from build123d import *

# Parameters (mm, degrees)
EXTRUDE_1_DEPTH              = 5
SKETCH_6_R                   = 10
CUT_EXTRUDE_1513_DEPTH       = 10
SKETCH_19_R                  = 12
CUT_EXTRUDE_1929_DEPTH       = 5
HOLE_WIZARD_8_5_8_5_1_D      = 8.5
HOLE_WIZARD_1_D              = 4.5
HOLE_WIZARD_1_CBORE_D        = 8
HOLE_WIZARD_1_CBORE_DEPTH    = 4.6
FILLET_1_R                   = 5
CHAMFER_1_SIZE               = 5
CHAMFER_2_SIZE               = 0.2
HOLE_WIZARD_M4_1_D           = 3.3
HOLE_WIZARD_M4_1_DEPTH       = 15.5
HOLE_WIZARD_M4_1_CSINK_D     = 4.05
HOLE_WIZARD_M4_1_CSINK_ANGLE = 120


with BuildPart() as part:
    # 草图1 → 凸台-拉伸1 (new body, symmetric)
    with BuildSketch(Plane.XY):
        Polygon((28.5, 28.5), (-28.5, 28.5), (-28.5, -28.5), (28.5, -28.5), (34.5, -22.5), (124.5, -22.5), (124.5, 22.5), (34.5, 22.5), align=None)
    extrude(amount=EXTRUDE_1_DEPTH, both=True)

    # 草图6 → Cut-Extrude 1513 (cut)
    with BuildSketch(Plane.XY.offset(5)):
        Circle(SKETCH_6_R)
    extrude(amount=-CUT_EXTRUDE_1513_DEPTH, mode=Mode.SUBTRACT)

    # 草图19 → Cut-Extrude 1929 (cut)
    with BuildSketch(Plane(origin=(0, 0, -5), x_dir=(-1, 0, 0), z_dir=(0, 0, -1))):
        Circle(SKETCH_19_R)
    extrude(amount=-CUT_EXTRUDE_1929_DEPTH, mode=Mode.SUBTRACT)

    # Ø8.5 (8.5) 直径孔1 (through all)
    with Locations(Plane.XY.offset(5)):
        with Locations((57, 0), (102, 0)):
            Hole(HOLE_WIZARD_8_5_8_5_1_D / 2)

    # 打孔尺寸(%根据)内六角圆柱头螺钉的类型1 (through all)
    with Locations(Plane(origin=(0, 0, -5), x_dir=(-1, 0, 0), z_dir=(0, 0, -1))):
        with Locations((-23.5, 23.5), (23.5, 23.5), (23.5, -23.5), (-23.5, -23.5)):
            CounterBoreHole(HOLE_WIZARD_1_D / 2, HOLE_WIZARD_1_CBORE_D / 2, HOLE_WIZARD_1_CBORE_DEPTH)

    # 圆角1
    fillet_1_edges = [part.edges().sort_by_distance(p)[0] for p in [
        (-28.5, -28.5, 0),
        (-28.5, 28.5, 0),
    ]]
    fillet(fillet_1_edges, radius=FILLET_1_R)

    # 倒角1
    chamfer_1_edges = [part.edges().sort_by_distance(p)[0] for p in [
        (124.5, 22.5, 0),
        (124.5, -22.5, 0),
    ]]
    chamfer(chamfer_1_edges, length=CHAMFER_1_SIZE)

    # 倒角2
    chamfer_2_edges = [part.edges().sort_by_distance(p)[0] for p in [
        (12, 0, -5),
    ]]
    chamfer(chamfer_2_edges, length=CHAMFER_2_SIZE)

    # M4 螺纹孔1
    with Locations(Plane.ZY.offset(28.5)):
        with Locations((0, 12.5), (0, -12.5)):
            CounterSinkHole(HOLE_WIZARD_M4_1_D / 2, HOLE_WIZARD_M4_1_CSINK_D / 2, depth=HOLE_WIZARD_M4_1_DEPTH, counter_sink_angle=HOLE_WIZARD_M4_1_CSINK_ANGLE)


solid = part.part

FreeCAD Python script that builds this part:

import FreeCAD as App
import Part
import Sketcher


def edges_at(feature, points):
    """Names of the edges that pass closest to the given points."""
    edges = feature.Shape.Edges
    near = lambda p: min(range(len(edges)), key=lambda i: edges[i].distToShape(Part.Vertex(*p))[0])
    return sorted({f"Edge{near(p) + 1}" for p in points})

doc = App.newDocument("Part")
body = doc.addObject("PartDesign::Body", "Body")

# Sketch on XY plane
sketch1 = body.newObject("Sketcher::SketchObject", "Sketch")
sketch1.AttachmentSupport = (doc.getObject("XY_Plane"), [""])
sketch1.MapMode = "FlatFace"
sketch1.addGeometry(Part.LineSegment(App.Vector(28.5, 28.5, 0), App.Vector(-28.5, 28.5, 0)), False)
sketch1.addGeometry(Part.LineSegment(App.Vector(-28.5, 28.5, 0), App.Vector(-28.5, -28.5, 0)), False)
sketch1.addGeometry(Part.LineSegment(App.Vector(-28.5, -28.5, 0), App.Vector(28.5, -28.5, 0)), False)
sketch1.addGeometry(Part.LineSegment(App.Vector(28.5, -28.5, 0), App.Vector(34.5, -22.5, 0)), False)
sketch1.addGeometry(Part.LineSegment(App.Vector(34.5, -22.5, 0), App.Vector(124.5, -22.5, 0)), False)
sketch1.addGeometry(Part.LineSegment(App.Vector(124.5, -22.5, 0), App.Vector(124.5, 22.5, 0)), False)
sketch1.addGeometry(Part.LineSegment(App.Vector(124.5, 22.5, 0), App.Vector(34.5, 22.5, 0)), False)
sketch1.addGeometry(Part.LineSegment(App.Vector(34.5, 22.5, 0), App.Vector(28.5, 28.5, 0)), False)
sketch1.addConstraint(Sketcher.Constraint("Coincident", 0, 2, 1, 1))
sketch1.addConstraint(Sketcher.Constraint("Coincident", 1, 2, 2, 1))
sketch1.addConstraint(Sketcher.Constraint("Coincident", 2, 2, 3, 1))
sketch1.addConstraint(Sketcher.Constraint("Coincident", 3, 2, 4, 1))
sketch1.addConstraint(Sketcher.Constraint("Coincident", 4, 2, 5, 1))
sketch1.addConstraint(Sketcher.Constraint("Coincident", 5, 2, 6, 1))
sketch1.addConstraint(Sketcher.Constraint("Coincident", 6, 2, 7, 1))
sketch1.addConstraint(Sketcher.Constraint("Coincident", 7, 2, 0, 1))
sketch1.addConstraint(Sketcher.Constraint("Horizontal", 0))
sketch1.addConstraint(Sketcher.Constraint("Vertical", 1))
sketch1.addConstraint(Sketcher.Constraint("Horizontal", 2))
sketch1.addConstraint(Sketcher.Constraint("Horizontal", 4))
sketch1.addConstraint(Sketcher.Constraint("Vertical", 5))
sketch1.addConstraint(Sketcher.Constraint("Horizontal", 6))
sketch1.addConstraint(Sketcher.Constraint("Symmetric", 0, 2, 2, 2, -1, 1))
sketch1.addConstraint(Sketcher.Constraint("Symmetric", 3, 2, 6, 2, -1))
sketch1.addConstraint(Sketcher.Constraint("Perpendicular", 3, 7))
sketch1.addConstraint(Sketcher.Constraint("Vertical", 2, 2, 7, 2))
sketch1.addConstraint(Sketcher.Constraint("Equal", 2, 1))
sketch1.addConstraint(Sketcher.Constraint("DistanceX", 0, 2, 0, 1, 57.0))
sketch1.addConstraint(Sketcher.Constraint("DistanceX", 4, 1, 4, 2, 90.0))
sketch1.addConstraint(Sketcher.Constraint("DistanceY", 5, 1, 5, 2, 45.0))
pad1 = body.newObject("PartDesign::Pad", "Pad")
pad1.Profile = sketch1
pad1.Length = 10
pad1.Midplane = True

# Sketch on XY plane
sketch2 = body.newObject("Sketcher::SketchObject", "Sketch001")
sketch2.AttachmentSupport = (doc.getObject("XY_Plane"), [""])
sketch2.MapMode = "FlatFace"
sketch2.AttachmentOffset = App.Placement(App.Vector(0, 0, 5), App.Rotation())
sketch2.addGeometry(Part.Circle(App.Vector(0, 0, 0), App.Vector(0, 0, 1), 10), False)
sketch2.addConstraint(Sketcher.Constraint("Coincident", 0, 3, -1, 1))
sketch2.addConstraint(Sketcher.Constraint("Diameter", 0, 20.0))
pocket1 = body.newObject("PartDesign::Pocket", "Pocket")
pocket1.Profile = sketch2
pocket1.Length = 10

# Sketch on XY plane
sketch3 = body.newObject("Sketcher::SketchObject", "Sketch002")
sketch3.AttachmentSupport = (doc.getObject("XY_Plane"), [""])
sketch3.MapMode = "FlatFace"
sketch3.AttachmentOffset = App.Placement(App.Vector(0, 0, -5), App.Rotation())
sketch3.addGeometry(Part.Circle(App.Vector(0, 0, 0), App.Vector(0, 0, 1), 12), False)
sketch3.addConstraint(Sketcher.Constraint("Coincident", 0, 3, -1, 1))
sketch3.addConstraint(Sketcher.Constraint("Diameter", 0, 24.0))
pocket2 = body.newObject("PartDesign::Pocket", "Pocket001")
pocket2.Profile = sketch3
pocket2.Length = 5
pocket2.Reversed = True

# Sketch on XY plane
sketch4 = body.newObject("Sketcher::SketchObject", "Sketch003")
sketch4.AttachmentSupport = (doc.getObject("XY_Plane"), [""])
sketch4.MapMode = "FlatFace"
sketch4.AttachmentOffset = App.Placement(App.Vector(0, 0, 5), App.Rotation())
sketch4.addGeometry(Part.Circle(App.Vector(57, 0, 0), App.Vector(0, 0, 1), 4.25), False)
sketch4.addGeometry(Part.Circle(App.Vector(102, 0, 0), App.Vector(0, 0, 1), 4.25), False)
sketch4.addConstraint(Sketcher.Constraint("Equal", 0, 1))
sketch4.addConstraint(Sketcher.Constraint("PointOnObject", 0, 3, -1))
sketch4.addConstraint(Sketcher.Constraint("PointOnObject", 1, 3, -1))
sketch4.addConstraint(Sketcher.Constraint("Diameter", 0, 8.5))
sketch4.addConstraint(Sketcher.Constraint("DistanceX", -1, 1, 0, 3, 57.0))
sketch4.addConstraint(Sketcher.Constraint("DistanceX", -1, 1, 1, 3, 102.0))
doc.recompute()
hole = body.newObject("PartDesign::Hole", "Hole")
hole.Profile = sketch4
hole.ThreadType = "None"
hole.Diameter = 8.5
hole.DepthType = "ThroughAll"

# Sketch on XY plane
sketch5 = body.newObject("Sketcher::SketchObject", "Sketch004")
sketch5.AttachmentSupport = (doc.getObject("XY_Plane"), [""])
sketch5.MapMode = "FlatFace"
sketch5.AttachmentOffset = App.Placement(App.Vector(0, 0, -5), App.Rotation())
sketch5.addGeometry(Part.Circle(App.Vector(23.5, 23.5, 0), App.Vector(0, 0, 1), 2.25), False)
sketch5.addGeometry(Part.Circle(App.Vector(-23.5, 23.5, 0), App.Vector(0, 0, 1), 2.25), False)
sketch5.addGeometry(Part.Circle(App.Vector(-23.5, -23.5, 0), App.Vector(0, 0, 1), 2.25), False)
sketch5.addGeometry(Part.Circle(App.Vector(23.5, -23.5, 0), App.Vector(0, 0, 1), 2.25), False)
sketch5.addConstraint(Sketcher.Constraint("Equal", 0, 1))
sketch5.addConstraint(Sketcher.Constraint("Equal", 1, 2))
sketch5.addConstraint(Sketcher.Constraint("Equal", 2, 3))
sketch5.addConstraint(Sketcher.Constraint("Symmetric", 0, 3, 2, 3, -1, 1))
sketch5.addConstraint(Sketcher.Constraint("Symmetric", 1, 3, 3, 3, -1, 1))
sketch5.addConstraint(Sketcher.Constraint("Symmetric", 0, 3, 1, 3, -2))
sketch5.addConstraint(Sketcher.Constraint("Diameter", 0, 4.5))
sketch5.addConstraint(Sketcher.Constraint("DistanceX", 1, 3, 0, 3, 47.0))
sketch5.addConstraint(Sketcher.Constraint("DistanceY", 2, 3, 1, 3, 47.0))
doc.recompute()
hole2 = body.newObject("PartDesign::Hole", "Hole001")
hole2.Profile = sketch5
hole2.ThreadType = "None"
hole2.Diameter = 4.5
hole2.DepthType = "ThroughAll"
hole2.HoleCutType = "Counterbore"
hole2.HoleCutDiameter = 8
hole2.HoleCutDepth = 4.6
hole2.Reversed = True
doc.recompute()

fillet = body.newObject("PartDesign::Fillet", "Fillet")
fillet.Base = (hole2, edges_at(hole2, [(-28.5, -28.5, 0), (-28.5, 28.5, 0)]))
fillet.Radius = 5
doc.recompute()

chamfer = body.newObject("PartDesign::Chamfer", "Chamfer")
chamfer.Base = (fillet, edges_at(fillet, [(124.5, 22.5, 0), (124.5, -22.5, 0)]))
chamfer.Size = 5
doc.recompute()

chamfer2 = body.newObject("PartDesign::Chamfer", "Chamfer001")
chamfer2.Base = (chamfer, edges_at(chamfer, [(12, 0, -5)]))
chamfer2.Size = 0.2

# Sketch on YZ plane
sketch6 = body.newObject("Sketcher::SketchObject", "Sketch005")
sketch6.AttachmentSupport = (doc.getObject("YZ_Plane"), [""])
sketch6.MapMode = "FlatFace"
sketch6.AttachmentOffset = App.Placement(App.Vector(0, 0, -28.5), App.Rotation())
sketch6.addGeometry(Part.Circle(App.Vector(12.5, 0, 0), App.Vector(0, 0, 1), 1.65), False)
sketch6.addGeometry(Part.Circle(App.Vector(-12.5, 0, 0), App.Vector(0, 0, 1), 1.65), False)
sketch6.addConstraint(Sketcher.Constraint("Equal", 0, 1))
sketch6.addConstraint(Sketcher.Constraint("Symmetric", 0, 3, 1, 3, -1, 1))
sketch6.addConstraint(Sketcher.Constraint("PointOnObject", 0, 3, -1))
sketch6.addConstraint(Sketcher.Constraint("Diameter", 0, 3.3))
sketch6.addConstraint(Sketcher.Constraint("DistanceX", 1, 3, 0, 3, 25.0))
doc.recompute()
hole3 = body.newObject("PartDesign::Hole", "Hole002")
hole3.Profile = sketch6
hole3.ThreadType = "None"
hole3.Diameter = 3.3
hole3.DepthType = "Dimension"
hole3.Depth = 15.5
hole3.DrillPoint = "Flat"
hole3.HoleCutType = "Countersink"
hole3.HoleCutDiameter = 4.05
hole3.HoleCutCountersinkAngle = 120
hole3.Reversed = True

doc.recompute()
